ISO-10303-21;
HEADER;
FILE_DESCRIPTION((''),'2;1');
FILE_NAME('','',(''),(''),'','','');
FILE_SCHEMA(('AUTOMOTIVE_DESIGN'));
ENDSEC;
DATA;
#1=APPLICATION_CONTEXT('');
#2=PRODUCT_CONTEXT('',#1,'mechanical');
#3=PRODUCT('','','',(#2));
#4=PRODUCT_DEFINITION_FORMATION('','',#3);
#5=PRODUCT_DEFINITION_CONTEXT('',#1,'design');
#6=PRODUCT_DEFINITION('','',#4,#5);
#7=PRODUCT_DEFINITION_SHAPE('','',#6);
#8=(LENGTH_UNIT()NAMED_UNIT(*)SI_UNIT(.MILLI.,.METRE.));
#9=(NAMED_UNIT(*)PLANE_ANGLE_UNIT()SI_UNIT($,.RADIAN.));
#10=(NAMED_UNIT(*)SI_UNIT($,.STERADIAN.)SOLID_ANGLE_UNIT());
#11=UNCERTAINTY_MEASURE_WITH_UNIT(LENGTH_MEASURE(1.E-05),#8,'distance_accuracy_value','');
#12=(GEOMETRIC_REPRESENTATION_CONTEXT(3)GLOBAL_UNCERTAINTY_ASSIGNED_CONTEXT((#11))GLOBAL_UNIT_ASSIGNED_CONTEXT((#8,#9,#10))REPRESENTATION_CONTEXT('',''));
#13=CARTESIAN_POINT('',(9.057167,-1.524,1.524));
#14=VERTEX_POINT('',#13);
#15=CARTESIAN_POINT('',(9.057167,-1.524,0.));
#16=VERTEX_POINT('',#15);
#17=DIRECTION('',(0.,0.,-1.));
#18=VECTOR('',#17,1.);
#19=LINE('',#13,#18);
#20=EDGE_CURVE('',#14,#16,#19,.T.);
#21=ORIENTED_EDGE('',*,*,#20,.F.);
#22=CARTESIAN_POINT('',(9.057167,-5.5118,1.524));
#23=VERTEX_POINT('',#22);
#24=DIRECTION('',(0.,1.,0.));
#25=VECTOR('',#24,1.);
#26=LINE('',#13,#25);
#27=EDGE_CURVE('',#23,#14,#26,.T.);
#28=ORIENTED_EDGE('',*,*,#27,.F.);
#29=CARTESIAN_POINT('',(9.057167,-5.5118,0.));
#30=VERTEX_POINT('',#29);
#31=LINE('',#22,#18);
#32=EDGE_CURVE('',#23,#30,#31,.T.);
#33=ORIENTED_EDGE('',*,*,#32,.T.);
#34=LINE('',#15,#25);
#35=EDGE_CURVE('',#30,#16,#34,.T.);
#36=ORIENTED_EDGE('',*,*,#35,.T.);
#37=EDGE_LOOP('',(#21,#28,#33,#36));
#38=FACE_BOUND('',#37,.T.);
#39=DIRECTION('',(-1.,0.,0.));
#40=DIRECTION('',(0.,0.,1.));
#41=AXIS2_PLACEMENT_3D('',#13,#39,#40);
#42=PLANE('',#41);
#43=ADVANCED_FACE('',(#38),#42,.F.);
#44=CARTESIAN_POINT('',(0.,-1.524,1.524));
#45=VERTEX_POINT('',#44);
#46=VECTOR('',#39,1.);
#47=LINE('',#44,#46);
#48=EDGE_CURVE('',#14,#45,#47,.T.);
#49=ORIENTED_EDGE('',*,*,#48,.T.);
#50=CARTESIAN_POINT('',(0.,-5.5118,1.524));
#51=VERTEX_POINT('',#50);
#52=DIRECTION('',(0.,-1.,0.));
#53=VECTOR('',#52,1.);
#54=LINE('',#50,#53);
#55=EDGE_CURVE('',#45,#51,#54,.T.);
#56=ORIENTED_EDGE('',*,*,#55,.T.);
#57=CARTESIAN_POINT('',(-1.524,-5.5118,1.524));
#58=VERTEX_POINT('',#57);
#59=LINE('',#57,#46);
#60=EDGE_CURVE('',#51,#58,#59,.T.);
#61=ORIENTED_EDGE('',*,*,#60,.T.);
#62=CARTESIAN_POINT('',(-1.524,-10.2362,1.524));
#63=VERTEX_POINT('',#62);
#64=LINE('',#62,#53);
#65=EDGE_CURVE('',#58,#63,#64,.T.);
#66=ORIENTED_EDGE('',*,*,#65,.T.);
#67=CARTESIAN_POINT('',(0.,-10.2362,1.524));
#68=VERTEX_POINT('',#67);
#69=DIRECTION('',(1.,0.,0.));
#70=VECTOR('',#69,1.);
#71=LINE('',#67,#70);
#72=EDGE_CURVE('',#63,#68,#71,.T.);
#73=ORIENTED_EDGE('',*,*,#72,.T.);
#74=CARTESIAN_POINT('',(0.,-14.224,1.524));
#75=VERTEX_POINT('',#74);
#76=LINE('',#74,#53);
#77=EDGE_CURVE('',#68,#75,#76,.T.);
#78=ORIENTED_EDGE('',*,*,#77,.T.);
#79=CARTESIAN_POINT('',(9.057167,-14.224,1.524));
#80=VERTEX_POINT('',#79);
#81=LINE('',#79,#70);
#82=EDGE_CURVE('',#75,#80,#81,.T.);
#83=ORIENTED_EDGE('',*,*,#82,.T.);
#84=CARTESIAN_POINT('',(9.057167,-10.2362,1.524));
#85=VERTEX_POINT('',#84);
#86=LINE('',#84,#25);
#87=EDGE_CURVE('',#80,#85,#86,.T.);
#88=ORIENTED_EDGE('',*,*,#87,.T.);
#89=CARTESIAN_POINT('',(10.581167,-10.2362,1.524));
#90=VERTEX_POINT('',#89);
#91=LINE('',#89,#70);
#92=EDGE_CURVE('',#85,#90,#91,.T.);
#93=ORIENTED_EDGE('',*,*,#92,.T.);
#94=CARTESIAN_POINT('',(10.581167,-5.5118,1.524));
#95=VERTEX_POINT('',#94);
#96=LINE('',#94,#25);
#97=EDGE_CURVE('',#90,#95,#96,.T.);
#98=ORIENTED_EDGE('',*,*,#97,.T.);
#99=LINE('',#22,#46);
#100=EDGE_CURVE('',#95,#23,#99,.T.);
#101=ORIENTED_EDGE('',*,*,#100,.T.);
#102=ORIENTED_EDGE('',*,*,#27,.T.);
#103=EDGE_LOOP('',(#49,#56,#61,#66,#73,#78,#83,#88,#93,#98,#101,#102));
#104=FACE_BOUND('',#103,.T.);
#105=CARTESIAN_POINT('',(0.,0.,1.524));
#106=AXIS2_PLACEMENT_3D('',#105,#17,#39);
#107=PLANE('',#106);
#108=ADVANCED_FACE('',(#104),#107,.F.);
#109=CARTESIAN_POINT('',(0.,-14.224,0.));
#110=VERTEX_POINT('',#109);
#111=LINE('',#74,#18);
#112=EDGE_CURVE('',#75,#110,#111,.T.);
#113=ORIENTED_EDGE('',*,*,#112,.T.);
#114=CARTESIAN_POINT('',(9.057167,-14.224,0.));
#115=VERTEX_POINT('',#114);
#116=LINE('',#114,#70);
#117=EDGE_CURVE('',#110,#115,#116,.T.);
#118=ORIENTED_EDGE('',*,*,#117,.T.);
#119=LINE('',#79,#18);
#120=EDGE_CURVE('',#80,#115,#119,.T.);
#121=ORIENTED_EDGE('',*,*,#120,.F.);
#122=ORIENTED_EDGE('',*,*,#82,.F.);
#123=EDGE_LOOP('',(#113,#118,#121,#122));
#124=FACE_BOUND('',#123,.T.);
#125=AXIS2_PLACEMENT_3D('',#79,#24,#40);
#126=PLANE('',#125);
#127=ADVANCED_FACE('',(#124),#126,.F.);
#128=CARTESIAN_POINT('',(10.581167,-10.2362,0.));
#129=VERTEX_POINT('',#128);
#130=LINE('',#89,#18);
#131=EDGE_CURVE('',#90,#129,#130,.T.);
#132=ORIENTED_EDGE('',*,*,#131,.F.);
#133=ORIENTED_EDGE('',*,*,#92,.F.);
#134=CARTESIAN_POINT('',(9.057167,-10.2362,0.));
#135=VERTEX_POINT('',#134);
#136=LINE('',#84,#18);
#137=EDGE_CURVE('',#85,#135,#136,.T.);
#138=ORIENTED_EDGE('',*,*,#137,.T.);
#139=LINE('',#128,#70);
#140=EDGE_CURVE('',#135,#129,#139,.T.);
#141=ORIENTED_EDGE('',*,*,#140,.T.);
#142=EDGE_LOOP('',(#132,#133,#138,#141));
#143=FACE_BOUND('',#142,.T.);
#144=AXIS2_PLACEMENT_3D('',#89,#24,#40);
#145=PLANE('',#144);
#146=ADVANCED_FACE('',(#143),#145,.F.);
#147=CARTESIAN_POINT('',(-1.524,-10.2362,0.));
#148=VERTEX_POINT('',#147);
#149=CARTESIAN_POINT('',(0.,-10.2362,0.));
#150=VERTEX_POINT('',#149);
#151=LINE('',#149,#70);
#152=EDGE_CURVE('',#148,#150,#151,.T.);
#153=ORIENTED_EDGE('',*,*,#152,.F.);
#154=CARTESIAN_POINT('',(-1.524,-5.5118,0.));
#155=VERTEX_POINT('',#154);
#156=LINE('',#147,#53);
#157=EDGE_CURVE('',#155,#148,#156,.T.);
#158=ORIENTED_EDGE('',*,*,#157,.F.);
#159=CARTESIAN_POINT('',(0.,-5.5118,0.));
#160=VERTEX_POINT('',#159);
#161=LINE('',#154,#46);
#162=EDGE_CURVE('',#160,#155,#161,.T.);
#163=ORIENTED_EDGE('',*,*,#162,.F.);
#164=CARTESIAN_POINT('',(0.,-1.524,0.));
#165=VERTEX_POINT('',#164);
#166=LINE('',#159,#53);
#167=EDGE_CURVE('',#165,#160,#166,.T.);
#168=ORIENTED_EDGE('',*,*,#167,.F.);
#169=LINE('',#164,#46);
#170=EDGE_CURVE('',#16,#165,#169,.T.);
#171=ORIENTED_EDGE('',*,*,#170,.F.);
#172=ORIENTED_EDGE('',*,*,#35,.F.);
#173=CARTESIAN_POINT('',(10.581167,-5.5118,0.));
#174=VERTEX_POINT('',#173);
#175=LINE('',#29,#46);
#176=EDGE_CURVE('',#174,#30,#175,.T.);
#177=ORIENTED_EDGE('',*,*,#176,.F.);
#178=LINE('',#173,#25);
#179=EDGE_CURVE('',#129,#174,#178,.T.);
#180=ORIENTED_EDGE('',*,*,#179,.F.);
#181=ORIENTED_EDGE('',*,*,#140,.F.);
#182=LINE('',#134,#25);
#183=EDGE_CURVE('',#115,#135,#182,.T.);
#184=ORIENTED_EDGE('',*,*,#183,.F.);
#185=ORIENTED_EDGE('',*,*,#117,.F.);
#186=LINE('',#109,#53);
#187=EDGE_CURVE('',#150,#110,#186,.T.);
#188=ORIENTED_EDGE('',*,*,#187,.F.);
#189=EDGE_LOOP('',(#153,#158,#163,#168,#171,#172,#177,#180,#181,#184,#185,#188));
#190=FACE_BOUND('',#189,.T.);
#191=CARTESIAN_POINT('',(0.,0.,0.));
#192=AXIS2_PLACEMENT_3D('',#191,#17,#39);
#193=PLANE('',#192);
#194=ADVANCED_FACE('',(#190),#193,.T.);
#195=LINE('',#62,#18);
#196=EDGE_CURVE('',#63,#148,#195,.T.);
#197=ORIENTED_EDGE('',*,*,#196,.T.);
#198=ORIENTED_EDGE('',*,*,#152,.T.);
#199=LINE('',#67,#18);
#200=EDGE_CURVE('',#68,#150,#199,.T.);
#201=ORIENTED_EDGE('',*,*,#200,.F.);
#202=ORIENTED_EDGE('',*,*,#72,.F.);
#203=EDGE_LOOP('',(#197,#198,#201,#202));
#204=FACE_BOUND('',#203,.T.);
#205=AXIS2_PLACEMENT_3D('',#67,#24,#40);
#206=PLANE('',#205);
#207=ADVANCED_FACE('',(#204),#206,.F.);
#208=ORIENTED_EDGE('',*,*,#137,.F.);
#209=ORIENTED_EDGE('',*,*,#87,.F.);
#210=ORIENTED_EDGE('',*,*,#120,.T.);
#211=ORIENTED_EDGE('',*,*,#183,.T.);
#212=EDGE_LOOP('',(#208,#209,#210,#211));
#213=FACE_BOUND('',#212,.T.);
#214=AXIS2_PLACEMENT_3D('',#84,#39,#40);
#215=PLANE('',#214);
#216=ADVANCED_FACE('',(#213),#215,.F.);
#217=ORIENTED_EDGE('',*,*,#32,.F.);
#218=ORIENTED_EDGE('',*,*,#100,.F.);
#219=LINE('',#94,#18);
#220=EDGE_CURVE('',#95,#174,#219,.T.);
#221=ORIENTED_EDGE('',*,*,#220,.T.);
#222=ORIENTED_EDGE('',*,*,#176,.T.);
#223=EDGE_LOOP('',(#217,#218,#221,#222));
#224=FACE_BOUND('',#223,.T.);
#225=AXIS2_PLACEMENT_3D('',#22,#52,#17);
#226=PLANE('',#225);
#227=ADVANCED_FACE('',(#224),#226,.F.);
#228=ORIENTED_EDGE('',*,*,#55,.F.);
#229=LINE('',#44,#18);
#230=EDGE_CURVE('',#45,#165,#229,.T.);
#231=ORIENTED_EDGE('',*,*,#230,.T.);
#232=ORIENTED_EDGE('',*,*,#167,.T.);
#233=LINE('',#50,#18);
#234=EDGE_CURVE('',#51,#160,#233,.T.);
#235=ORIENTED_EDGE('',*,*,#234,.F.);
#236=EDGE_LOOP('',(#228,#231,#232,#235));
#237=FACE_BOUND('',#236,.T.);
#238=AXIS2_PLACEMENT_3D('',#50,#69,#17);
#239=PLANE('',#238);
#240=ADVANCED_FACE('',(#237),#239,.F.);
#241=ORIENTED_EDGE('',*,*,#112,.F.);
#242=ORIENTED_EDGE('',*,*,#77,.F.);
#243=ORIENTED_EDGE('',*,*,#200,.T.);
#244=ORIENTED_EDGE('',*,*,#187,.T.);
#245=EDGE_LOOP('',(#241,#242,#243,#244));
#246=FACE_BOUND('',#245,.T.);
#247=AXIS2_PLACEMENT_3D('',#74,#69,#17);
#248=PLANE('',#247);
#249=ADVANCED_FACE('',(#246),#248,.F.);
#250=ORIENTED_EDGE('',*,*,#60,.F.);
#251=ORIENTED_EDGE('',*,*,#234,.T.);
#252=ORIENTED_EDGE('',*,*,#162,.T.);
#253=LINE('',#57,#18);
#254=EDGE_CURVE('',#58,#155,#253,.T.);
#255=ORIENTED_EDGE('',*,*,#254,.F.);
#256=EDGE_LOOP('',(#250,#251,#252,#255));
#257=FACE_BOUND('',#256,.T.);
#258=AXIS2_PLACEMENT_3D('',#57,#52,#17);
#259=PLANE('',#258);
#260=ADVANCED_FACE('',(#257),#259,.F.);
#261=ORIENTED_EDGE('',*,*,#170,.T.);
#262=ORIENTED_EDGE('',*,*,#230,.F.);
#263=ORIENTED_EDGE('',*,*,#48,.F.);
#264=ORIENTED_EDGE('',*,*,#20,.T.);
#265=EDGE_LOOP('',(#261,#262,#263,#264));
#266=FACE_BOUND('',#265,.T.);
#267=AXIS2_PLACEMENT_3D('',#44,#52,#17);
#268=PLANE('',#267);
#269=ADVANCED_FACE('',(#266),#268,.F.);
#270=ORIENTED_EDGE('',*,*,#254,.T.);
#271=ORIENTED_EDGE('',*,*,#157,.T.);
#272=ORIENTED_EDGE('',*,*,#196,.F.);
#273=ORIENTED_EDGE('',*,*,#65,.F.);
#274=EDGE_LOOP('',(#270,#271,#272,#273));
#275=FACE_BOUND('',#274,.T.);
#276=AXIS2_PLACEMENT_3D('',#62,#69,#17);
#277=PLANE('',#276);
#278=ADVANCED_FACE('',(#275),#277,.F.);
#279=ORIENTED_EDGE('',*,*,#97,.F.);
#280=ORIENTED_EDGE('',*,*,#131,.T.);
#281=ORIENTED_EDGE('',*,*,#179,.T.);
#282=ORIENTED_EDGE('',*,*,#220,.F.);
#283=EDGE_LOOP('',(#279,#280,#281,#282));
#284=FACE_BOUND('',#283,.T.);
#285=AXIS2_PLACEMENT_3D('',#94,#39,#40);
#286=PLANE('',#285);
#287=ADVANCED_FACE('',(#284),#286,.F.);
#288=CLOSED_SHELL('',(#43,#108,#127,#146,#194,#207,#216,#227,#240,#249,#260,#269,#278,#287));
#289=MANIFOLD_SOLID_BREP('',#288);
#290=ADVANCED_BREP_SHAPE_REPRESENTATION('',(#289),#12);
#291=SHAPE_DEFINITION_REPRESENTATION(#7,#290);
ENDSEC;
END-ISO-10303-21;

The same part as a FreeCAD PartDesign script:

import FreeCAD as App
import Part
import Sketcher
Q = App.Units.Quantity

doc = App.newDocument("Part")
body = doc.addObject("PartDesign::Body", "Body")

# Sketch on XY plane
sketch1 = body.newObject("Sketcher::SketchObject", "Sketch")
sketch1.AttachmentSupport = (doc.getObject("XY_Plane"), [""])
sketch1.MapMode = "FlatFace"
sketch1.addGeometry([
    Part.LineSegment(App.Vector(0, -10.2362, 0), App.Vector(0, -14.224, 0)),  # 0
    Part.LineSegment(App.Vector(0, -14.224, 0), App.Vector(9.057167, -14.224, 0)),  # 1
    Part.LineSegment(App.Vector(9.057167, -14.224, 0), App.Vector(9.057167, -10.2362, 0)),  # 2
    Part.LineSegment(App.Vector(9.057167, -10.2362, 0), App.Vector(10.581167, -10.2362, 0)),  # 3
    Part.LineSegment(App.Vector(10.581167, -10.2362, 0), App.Vector(10.581167, -5.5118, 0)),  # 4
    Part.LineSegment(App.Vector(10.581167, -5.5118, 0), App.Vector(9.057167, -5.5118, 0)),  # 5
    Part.LineSegment(App.Vector(9.057167, -5.5118, 0), App.Vector(9.057167, -1.524, 0)),  # 6
    Part.LineSegment(App.Vector(9.057167, -1.524, 0), App.Vector(0, -1.524, 0)),  # 7
    Part.LineSegment(App.Vector(0, -1.524, 0), App.Vector(0, -5.5118, 0)),  # 8
    Part.LineSegment(App.Vector(0, -5.5118, 0), App.Vector(-1.524, -5.5118, 0)),  # 9
    Part.LineSegment(App.Vector(-1.524, -5.5118, 0), App.Vector(-1.524, -10.2362, 0)),  # 10
    Part.LineSegment(App.Vector(-1.524, -10.2362, 0), App.Vector(0, -10.2362, 0)),  # 11
], False)
sketch1.addConstraint([
    Sketcher.Constraint("Coincident", 0, 2, 1, 1),
    Sketcher.Constraint("Coincident", 1, 2, 2, 1),
    Sketcher.Constraint("Coincident", 2, 2, 3, 1),
    Sketcher.Constraint("Coincident", 3, 2, 4, 1),
    Sketcher.Constraint("Coincident", 4, 2, 5, 1),
    Sketcher.Constraint("Coincident", 5, 2, 6, 1),
    Sketcher.Constraint("Coincident", 6, 2, 7, 1),
    Sketcher.Constraint("Coincident", 7, 2, 8, 1),
    Sketcher.Constraint("Coincident", 8, 2, 9, 1),
    Sketcher.Constraint("Coincident", 9, 2, 10, 1),
    Sketcher.Constraint("Coincident", 10, 2, 11, 1),
    Sketcher.Constraint("Coincident", 11, 2, 0, 1),
    Sketcher.Constraint("Vertical", 0),
    Sketcher.Constraint("Horizontal", 1),
    Sketcher.Constraint("Vertical", 2),
    Sketcher.Constraint("Horizontal", 3),
    Sketcher.Constraint("Vertical", 4),
    Sketcher.Constraint("Horizontal", 5),
    Sketcher.Constraint("Vertical", 6),
    Sketcher.Constraint("Horizontal", 7),
    Sketcher.Constraint("Vertical", 8),
    Sketcher.Constraint("Horizontal", 9),
    Sketcher.Constraint("Vertical", 10),
    Sketcher.Constraint("Horizontal", 11),
    Sketcher.Constraint("PointOnObject", 0, 2, -2),
    Sketcher.Constraint("PointOnObject", 7, 2, -2),
    Sketcher.Constraint("Horizontal", 5, 2, 8, 2),
    Sketcher.Constraint("Horizontal", 3, 2, 10, 2),
    Sketcher.Constraint("Vertical", 2, 2, 5, 2),
    Sketcher.Constraint("Equal", 5, 9),
    Sketcher.Constraint("Equal", 2, 6),
    Sketcher.Constraint("DistanceX", 3, 1, 3, 2, Q("0.06 in")),
    Sketcher.Constraint("DistanceY", 1, 2, 6, 2, Q("0.5 in")),
    Sketcher.Constraint("DistanceY", 0, 2, 0, 1, Q("0.157 in")),
    Sketcher.Constraint("DistanceY", 0, 2, -1, 1, Q("0.56 in")),
    Sketcher.Constraint("DistanceX", 1, 1, 1, 2, 9.057167),
])
pad1 = body.newObject("PartDesign::Pad", "Pad")
pad1.Profile = sketch1
pad1.Length = Q("0.06 in")

doc.recompute()
